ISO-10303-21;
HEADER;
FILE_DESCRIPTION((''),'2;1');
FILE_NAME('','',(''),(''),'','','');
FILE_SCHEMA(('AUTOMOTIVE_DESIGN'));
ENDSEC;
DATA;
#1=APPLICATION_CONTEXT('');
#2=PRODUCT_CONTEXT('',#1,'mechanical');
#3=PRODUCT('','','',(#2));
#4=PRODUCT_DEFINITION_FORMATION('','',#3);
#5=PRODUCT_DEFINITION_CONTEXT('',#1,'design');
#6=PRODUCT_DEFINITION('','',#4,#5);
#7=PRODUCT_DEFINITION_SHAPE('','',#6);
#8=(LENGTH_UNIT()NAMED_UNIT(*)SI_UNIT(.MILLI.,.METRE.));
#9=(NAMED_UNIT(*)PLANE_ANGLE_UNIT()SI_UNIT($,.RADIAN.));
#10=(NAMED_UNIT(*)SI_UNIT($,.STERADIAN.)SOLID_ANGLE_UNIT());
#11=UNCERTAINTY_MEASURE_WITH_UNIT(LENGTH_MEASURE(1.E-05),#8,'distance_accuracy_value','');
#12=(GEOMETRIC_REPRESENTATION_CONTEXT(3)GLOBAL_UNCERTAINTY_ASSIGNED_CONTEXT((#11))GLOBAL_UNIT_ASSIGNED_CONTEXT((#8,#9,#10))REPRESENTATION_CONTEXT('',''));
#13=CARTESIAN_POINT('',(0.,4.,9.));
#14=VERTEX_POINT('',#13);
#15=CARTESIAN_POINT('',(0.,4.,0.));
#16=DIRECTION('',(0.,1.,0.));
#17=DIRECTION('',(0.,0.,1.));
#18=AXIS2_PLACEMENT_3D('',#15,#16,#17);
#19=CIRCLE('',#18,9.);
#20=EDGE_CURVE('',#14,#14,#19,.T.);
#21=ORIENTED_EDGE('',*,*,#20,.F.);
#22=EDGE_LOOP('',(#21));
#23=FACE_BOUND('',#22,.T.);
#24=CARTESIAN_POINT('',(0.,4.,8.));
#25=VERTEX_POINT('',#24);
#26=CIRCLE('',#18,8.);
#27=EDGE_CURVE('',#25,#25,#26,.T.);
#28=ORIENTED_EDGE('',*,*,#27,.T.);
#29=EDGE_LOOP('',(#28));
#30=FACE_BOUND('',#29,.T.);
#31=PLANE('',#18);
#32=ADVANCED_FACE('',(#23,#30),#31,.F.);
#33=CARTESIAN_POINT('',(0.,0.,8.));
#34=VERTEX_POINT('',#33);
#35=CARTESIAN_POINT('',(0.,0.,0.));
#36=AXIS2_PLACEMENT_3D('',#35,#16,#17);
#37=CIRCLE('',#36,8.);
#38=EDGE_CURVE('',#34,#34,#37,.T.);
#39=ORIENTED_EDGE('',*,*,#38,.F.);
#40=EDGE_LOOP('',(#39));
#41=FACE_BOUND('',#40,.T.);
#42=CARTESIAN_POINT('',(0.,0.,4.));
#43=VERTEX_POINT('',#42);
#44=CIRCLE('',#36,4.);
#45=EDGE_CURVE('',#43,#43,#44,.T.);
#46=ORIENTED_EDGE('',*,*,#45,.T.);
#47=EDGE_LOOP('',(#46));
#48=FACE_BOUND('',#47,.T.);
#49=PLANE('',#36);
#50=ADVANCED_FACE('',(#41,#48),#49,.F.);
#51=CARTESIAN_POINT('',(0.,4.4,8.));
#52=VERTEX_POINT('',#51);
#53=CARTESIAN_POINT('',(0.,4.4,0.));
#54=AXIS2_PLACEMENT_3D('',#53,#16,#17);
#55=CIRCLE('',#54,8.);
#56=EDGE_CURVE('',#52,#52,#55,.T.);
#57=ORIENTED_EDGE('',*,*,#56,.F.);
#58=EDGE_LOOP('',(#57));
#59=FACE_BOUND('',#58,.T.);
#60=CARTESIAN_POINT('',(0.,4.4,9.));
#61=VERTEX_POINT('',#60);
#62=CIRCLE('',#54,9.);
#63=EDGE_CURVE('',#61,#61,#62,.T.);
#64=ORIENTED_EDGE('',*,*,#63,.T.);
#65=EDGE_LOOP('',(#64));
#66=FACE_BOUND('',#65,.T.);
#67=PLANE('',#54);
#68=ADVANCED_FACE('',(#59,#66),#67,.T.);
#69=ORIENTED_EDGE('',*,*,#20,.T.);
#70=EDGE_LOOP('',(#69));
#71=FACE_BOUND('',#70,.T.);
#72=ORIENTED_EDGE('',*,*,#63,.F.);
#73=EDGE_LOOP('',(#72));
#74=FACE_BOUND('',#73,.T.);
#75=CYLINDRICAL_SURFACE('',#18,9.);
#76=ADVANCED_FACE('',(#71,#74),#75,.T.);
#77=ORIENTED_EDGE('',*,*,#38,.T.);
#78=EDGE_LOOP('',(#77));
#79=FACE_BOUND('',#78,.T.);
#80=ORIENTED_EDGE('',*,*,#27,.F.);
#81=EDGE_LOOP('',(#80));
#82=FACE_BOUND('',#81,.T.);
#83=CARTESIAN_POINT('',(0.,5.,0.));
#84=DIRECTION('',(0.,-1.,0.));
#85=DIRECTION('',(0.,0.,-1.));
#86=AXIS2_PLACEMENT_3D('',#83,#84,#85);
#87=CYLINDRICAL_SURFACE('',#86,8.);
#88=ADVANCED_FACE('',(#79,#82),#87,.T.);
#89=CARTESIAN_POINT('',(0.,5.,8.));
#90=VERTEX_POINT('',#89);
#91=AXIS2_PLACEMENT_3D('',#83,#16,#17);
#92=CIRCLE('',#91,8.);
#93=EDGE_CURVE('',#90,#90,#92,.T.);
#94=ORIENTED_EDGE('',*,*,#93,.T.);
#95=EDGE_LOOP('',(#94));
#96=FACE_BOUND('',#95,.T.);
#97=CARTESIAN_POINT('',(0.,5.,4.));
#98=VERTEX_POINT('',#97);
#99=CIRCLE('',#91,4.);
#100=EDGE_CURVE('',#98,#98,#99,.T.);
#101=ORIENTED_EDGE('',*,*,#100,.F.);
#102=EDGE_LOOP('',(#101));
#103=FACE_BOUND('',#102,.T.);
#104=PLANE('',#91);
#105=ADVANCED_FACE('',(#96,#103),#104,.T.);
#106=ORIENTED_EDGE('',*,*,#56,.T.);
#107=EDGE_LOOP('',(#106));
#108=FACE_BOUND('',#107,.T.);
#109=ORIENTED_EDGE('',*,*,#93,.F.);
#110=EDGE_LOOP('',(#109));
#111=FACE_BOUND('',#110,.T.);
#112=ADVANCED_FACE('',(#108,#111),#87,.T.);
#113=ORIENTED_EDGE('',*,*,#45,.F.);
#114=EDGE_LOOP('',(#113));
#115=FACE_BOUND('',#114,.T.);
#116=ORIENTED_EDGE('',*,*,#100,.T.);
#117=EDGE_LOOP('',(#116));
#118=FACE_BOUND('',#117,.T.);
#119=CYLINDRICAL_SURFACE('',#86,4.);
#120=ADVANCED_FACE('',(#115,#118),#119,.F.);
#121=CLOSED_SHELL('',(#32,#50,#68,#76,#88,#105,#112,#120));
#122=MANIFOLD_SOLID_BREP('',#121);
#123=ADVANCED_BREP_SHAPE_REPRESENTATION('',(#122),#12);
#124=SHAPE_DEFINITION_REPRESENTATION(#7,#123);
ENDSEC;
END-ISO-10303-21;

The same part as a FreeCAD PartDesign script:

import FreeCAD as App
import Part
import Sketcher

V = App.Vector

doc = App.newDocument("Part")
body = doc.addObject("PartDesign::Body", "Body")

# Sketch on XZ plane
sketch1 = body.newObject("Sketcher::SketchObject", "Sketch")
sketch1.AttachmentSupport = (doc.getObject("XZ_Plane"), [""])
sketch1.MapMode = "FlatFace"
sketch1.addGeometry([
    Part.Circle(V(0, 0, 0), V(0, 0, 1), 8),
    Part.Circle(V(0, 0, 0), V(0, 0, 1), 4),
], False)
sketch1.addConstraint([
    Sketcher.Constraint("Coincident", 0, 3, -1, 1),
    Sketcher.Constraint("Coincident", 1, 3, -1, 1),
    Sketcher.Constraint("Diameter", 0, 16.0),
    Sketcher.Constraint("Diameter", 1, 8.0),
])
pad1 = body.newObject("PartDesign::Pad", "Pad")
pad1.Profile = sketch1
pad1.Length = 5
pad1.Reversed = True

# Sketch on XZ plane
sketch2 = body.newObject("Sketcher::SketchObject", "Sketch001")
sketch2.AttachmentSupport = (doc.getObject("XZ_Plane"), [""])
sketch2.MapMode = "FlatFace"
sketch2.AttachmentOffset = App.Placement(V(0, 0, -4), App.Rotation())
sketch2.addGeometry([
    Part.Circle(V(0, 0, 0), V(0, 0, 1), 9),
    Part.Circle(V(0, 0, 0), V(0, 0, 1), 8),
], False)
sketch2.addConstraint([
    Sketcher.Constraint("Coincident", 0, 3, -1, 1),
    Sketcher.Constraint("Coincident", 1, 3, -1, 1),
    Sketcher.Constraint("Diameter", 0, 18.0),
    Sketcher.Constraint("Diameter", 1, 16.0),
])
pad2 = body.newObject("PartDesign::Pad", "Pad001")
pad2.Profile = sketch2
pad2.Length = 0.4
pad2.Reversed = True

doc.recompute()
